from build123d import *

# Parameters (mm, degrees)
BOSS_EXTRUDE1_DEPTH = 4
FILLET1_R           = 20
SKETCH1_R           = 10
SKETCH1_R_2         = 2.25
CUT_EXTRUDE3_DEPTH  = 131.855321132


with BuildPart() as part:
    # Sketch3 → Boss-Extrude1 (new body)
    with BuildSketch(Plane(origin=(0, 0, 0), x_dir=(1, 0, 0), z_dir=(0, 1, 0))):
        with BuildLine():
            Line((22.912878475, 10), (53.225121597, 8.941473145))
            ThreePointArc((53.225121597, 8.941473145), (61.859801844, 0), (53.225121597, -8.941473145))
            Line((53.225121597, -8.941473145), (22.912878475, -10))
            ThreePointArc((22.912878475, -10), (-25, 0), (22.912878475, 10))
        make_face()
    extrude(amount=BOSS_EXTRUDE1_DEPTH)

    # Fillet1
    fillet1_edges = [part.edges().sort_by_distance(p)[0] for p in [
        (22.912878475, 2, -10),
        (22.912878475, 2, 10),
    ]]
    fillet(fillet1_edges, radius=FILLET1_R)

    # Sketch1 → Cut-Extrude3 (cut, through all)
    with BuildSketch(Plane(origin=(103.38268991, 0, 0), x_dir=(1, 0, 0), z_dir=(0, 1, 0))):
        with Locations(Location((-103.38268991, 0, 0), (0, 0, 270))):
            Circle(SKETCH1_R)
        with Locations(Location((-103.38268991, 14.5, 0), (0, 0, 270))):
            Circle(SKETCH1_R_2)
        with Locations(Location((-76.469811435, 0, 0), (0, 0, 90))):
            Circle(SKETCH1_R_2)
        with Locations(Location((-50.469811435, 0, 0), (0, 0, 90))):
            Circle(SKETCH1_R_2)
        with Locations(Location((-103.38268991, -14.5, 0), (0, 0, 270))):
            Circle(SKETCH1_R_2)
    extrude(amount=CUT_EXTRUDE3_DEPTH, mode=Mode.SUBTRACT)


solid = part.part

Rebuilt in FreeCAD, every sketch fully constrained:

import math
import FreeCAD as App
import Part
import Sketcher

V = App.Vector
Q = App.Units.Quantity


def edges_at(feature, points):
    """Names of the edges that pass closest to the given points."""
    edges = feature.Shape.Edges
    near = lambda p: min(range(len(edges)), key=lambda i: edges[i].distToShape(Part.Vertex(*p))[0])
    return sorted({f"Edge{near(p) + 1}" for p in points})

doc = App.newDocument("Part")
body = doc.addObject("PartDesign::Body", "Body")

# Sketch on XZ plane
sketch1 = body.newObject("Sketcher::SketchObject", "Sketch")
sketch1.AttachmentSupport = (doc.getObject("XZ_Plane"), [""])
sketch1.MapMode = "FlatFace"
sketch1.addGeometry([
    Part.LineSegment(V(53, -9, 0), V(23, -10, 0)),
    Part.ArcOfCircle(Part.Circle(V(0, 0, 0), V(0, 0, 1), 25), math.radians(24), math.radians(336)),
    Part.LineSegment(V(23, 10, 0), V(53, 9, 0)),
    Part.ArcOfCircle(Part.Circle(V(53, 0, 0), V(0, 0, 1), 9), math.radians(-88), math.radians(88)),
], False)
sketch1.addConstraint([
    Sketcher.Constraint("Coincident", 0, 2, 1, 2),
    Sketcher.Constraint("Coincident", 1, 1, 2, 1),
    Sketcher.Constraint("Tangent", 2, 2, 3, 2),
    Sketcher.Constraint("Tangent", 3, 1, 0, 1),
    Sketcher.Constraint("Coincident", 1, 3, -1, 1),
    Sketcher.Constraint("Symmetric", 2, 2, 3, 1, -1),
    Sketcher.Constraint("Radius", 1, Q("25 mm")),
    Sketcher.Constraint("Angle", 0, Q("-178 deg")),
    Sketcher.Constraint("DistanceY", 0, 2, -1, 1, Q("10 mm")),
    Sketcher.Constraint("DistanceX", 0, 2, 3, 3, Q("30 mm")),
])
pad1 = body.newObject("PartDesign::Pad", "Pad")
pad1.Profile = sketch1
pad1.Length = 4
pad1.Reversed = True
doc.recompute()

fillet = body.newObject("PartDesign::Fillet", "Fillet")
fillet.Base = (pad1, edges_at(pad1, [(22.913, 2, -10), (22.913, 2, 10)]))
fillet.Radius = 20

# Sketch on XZ plane
sketch2 = body.newObject("Sketcher::SketchObject", "Sketch001")
sketch2.AttachmentSupport = (doc.getObject("XZ_Plane"), [""])
sketch2.MapMode = "FlatFace"
sketch2.addGeometry([
    Part.Circle(V(0, 0, 0), V(0, 0, 1), 10),  # 0
    Part.Circle(V(0, -14.5, 0), V(0, 0, 1), 2.2),  # 1
    Part.Circle(V(26.9, 0, 0), V(0, 0, 1), 2.2),  # 2
    Part.Circle(V(52.9, 0, 0), V(0, 0, 1), 2.2),  # 3
    Part.Circle(V(0, 14.5, 0), V(0, 0, 1), 2.2),  # 4
], False)
sketch2.addConstraint([
    Sketcher.Constraint("Coincident", 0, 3, -1, 1),
    Sketcher.Constraint("Equal", 1, 2),
    Sketcher.Constraint("Equal", 2, 3),
    Sketcher.Constraint("Equal", 3, 4),
    Sketcher.Constraint("Symmetric", 1, 3, 4, 3, -1, 1),
    Sketcher.Constraint("PointOnObject", 1, 3, -2),
    Sketcher.Constraint("PointOnObject", 2, 3, -1),
    Sketcher.Constraint("PointOnObject", 3, 3, -1),
    Sketcher.Constraint("Diameter", 0, Q("20 mm")),
    Sketcher.Constraint("Diameter", 1, Q("4.5 mm")),
    Sketcher.Constraint("DistanceX", 2, 3, 3, 3, Q("26 mm")),
    Sketcher.Constraint("DistanceY", 1, 3, 4, 3, Q("29 mm")),
    Sketcher.Constraint("DistanceX", -1, 1, 2, 3, Q("26.912878 mm")),
])
pocket1 = body.newObject("PartDesign::Pocket", "Pocket")
pocket1.Profile = sketch2
pocket1.Type = "ThroughAll"

doc.recompute()
